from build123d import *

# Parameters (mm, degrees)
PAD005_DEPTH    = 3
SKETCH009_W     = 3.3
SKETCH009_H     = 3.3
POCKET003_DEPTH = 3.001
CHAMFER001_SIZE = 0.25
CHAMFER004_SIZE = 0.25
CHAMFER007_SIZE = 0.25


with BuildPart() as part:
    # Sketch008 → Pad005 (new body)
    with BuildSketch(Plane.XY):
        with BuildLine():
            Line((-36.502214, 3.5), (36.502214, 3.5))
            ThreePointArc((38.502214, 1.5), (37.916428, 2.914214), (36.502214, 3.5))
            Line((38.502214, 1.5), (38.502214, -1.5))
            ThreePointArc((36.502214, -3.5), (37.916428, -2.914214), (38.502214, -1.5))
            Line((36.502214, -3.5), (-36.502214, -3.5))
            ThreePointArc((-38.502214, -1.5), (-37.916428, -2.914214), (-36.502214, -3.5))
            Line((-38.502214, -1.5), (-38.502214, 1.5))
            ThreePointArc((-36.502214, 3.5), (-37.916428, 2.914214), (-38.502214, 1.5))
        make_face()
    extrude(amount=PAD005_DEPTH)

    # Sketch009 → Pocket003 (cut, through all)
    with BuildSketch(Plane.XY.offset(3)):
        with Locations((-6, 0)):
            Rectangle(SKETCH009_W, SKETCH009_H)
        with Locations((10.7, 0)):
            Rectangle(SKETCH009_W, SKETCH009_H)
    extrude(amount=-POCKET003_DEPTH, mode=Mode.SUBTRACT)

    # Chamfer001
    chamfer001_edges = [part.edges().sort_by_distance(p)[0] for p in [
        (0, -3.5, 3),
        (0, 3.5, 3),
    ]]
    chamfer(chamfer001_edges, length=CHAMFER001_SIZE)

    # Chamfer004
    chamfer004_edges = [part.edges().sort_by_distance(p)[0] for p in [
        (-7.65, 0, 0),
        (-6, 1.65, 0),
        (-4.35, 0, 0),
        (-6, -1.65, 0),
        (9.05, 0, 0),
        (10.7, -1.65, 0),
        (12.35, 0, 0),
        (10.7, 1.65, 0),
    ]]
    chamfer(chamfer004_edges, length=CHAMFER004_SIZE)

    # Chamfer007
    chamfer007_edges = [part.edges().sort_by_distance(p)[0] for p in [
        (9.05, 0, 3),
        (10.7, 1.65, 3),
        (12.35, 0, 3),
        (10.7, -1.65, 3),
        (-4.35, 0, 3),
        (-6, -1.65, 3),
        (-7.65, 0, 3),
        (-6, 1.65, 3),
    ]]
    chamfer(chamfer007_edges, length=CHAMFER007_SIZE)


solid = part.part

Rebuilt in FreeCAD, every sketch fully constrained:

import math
import FreeCAD as App
import Part
import Sketcher
Q = App.Units.Quantity


def edges_at(feature, points):
    """Names of the edges that pass closest to the given points."""
    edges = feature.Shape.Edges
    near = lambda p: min(range(len(edges)), key=lambda i: edges[i].distToShape(Part.Vertex(*p))[0])
    return sorted({f"Edge{near(p) + 1}" for p in points})

doc = App.newDocument("Part")
body = doc.addObject("PartDesign::Body", "Body")

# Sketch on XY plane
sketch1 = doc.addObject("Sketcher::SketchObject", "Sketch")
body.addObject(sketch1)
sketch1.AttachmentSupport = (doc.XY_Plane, [""])
sketch1.MapMode = "FlatFace"
sketch1.addGeometry(Part.LineSegment(App.Vector(36.5, 3.5, 0), App.Vector(-36.5, 3.5, 0)), False)
sketch1.addGeometry(Part.ArcOfCircle(Part.Circle(App.Vector(-36.5, 1.5, 0), App.Vector(0, 0, 1), 2), math.radians(90), math.radians(180)), False)
sketch1.addGeometry(Part.LineSegment(App.Vector(-38.5, 1.5, 0), App.Vector(-38.5, -1.5, 0)), False)
sketch1.addGeometry(Part.ArcOfCircle(Part.Circle(App.Vector(-36.5, -1.5, 0), App.Vector(0, 0, 1), 2), math.radians(180), math.radians(270)), False)
sketch1.addGeometry(Part.LineSegment(App.Vector(-36.5, -3.5, 0), App.Vector(36.5, -3.5, 0)), False)
sketch1.addGeometry(Part.ArcOfCircle(Part.Circle(App.Vector(36.5, -1.5, 0), App.Vector(0, 0, 1), 2), math.radians(-90), math.radians(0)), False)
sketch1.addGeometry(Part.LineSegment(App.Vector(38.5, -1.5, 0), App.Vector(38.5, 1.5, 0)), False)
sketch1.addGeometry(Part.ArcOfCircle(Part.Circle(App.Vector(36.5, 1.5, 0), App.Vector(0, 0, 1), 2), math.radians(0), math.radians(90)), False)
sketch1.addConstraint(Sketcher.Constraint("Tangent", 0, 2, 1, 1))
sketch1.addConstraint(Sketcher.Constraint("Tangent", 1, 2, 2, 1))
sketch1.addConstraint(Sketcher.Constraint("Tangent", 2, 2, 3, 1))
sketch1.addConstraint(Sketcher.Constraint("Tangent", 3, 2, 4, 1))
sketch1.addConstraint(Sketcher.Constraint("Tangent", 4, 2, 5, 1))
sketch1.addConstraint(Sketcher.Constraint("Tangent", 5, 2, 6, 1))
sketch1.addConstraint(Sketcher.Constraint("Tangent", 6, 2, 7, 1))
sketch1.addConstraint(Sketcher.Constraint("Tangent", 7, 2, 0, 1))
sketch1.addConstraint(Sketcher.Constraint("Horizontal", 0))
sketch1.addConstraint(Sketcher.Constraint("Vertical", 2))
sketch1.addConstraint(Sketcher.Constraint("Horizontal", 4))
sketch1.addConstraint(Sketcher.Constraint("Vertical", 6))
sketch1.addConstraint(Sketcher.Constraint("Equal", 1, 3))
sketch1.addConstraint(Sketcher.Constraint("Equal", 3, 5))
sketch1.addConstraint(Sketcher.Constraint("Equal", 5, 7))
sketch1.addConstraint(Sketcher.Constraint("Symmetric", 1, 3, 5, 3, -1, 1))
sketch1.addConstraint(Sketcher.Constraint("Radius", 1, Q("1.999999 mm")))
sketch1.addConstraint(Sketcher.Constraint("DistanceY", 2, 2, 2, 1, Q("3 mm")))
sketch1.addConstraint(Sketcher.Constraint("DistanceX", 0, 2, 0, 1, Q("73.004428 mm")))
pad1 = doc.addObject("PartDesign::Pad", "Pad")
body.addObject(pad1)
pad1.Profile = sketch1
pad1.Length = 3

# Sketch on XY plane
sketch2 = doc.addObject("Sketcher::SketchObject", "Sketch001")
body.addObject(sketch2)
sketch2.AttachmentSupport = (doc.XY_Plane, [""])
sketch2.MapMode = "FlatFace"
sketch2.AttachmentOffset = App.Placement(App.Vector(0, 0, 3), App.Rotation())
sketch2.addGeometry(Part.LineSegment(App.Vector(-7.7, 1.6, 0), App.Vector(-7.7, -1.6, 0)), False)
sketch2.addGeometry(Part.LineSegment(App.Vector(-7.7, -1.6, 0), App.Vector(-4.3, -1.6, 0)), False)
sketch2.addGeometry(Part.LineSegment(App.Vector(-4.3, -1.6, 0), App.Vector(-4.3, 1.6, 0)), False)
sketch2.addGeometry(Part.LineSegment(App.Vector(-4.3, 1.6, 0), App.Vector(-7.7, 1.6, 0)), False)
sketch2.addGeometry(Part.LineSegment(App.Vector(9.1, 1.6, 0), App.Vector(9.1, -1.6, 0)), False)
sketch2.addGeometry(Part.LineSegment(App.Vector(9.1, -1.6, 0), App.Vector(12.3, -1.6, 0)), False)
sketch2.addGeometry(Part.LineSegment(App.Vector(12.3, -1.6, 0), App.Vector(12.3, 1.6, 0)), False)
sketch2.addGeometry(Part.LineSegment(App.Vector(12.3, 1.6, 0), App.Vector(9.1, 1.6, 0)), False)
sketch2.addConstraint(Sketcher.Constraint("Coincident", 0, 2, 1, 1))
sketch2.addConstraint(Sketcher.Constraint("Coincident", 1, 2, 2, 1))
sketch2.addConstraint(Sketcher.Constraint("Coincident", 2, 2, 3, 1))
sketch2.addConstraint(Sketcher.Constraint("Coincident", 3, 2, 0, 1))
sketch2.addConstraint(Sketcher.Constraint("Coincident", 4, 2, 5, 1))
sketch2.addConstraint(Sketcher.Constraint("Coincident", 5, 2, 6, 1))
sketch2.addConstraint(Sketcher.Constraint("Coincident", 6, 2, 7, 1))
sketch2.addConstraint(Sketcher.Constraint("Coincident", 7, 2, 4, 1))
sketch2.addConstraint(Sketcher.Constraint("Vertical", 0))
sketch2.addConstraint(Sketcher.Constraint("Horizontal", 1))
sketch2.addConstraint(Sketcher.Constraint("Vertical", 2))
sketch2.addConstraint(Sketcher.Constraint("Horizontal", 3))
sketch2.addConstraint(Sketcher.Constraint("Vertical", 4))
sketch2.addConstraint(Sketcher.Constraint("Horizontal", 5))
sketch2.addConstraint(Sketcher.Constraint("Vertical", 6))
sketch2.addConstraint(Sketcher.Constraint("Horizontal", 7))
sketch2.addConstraint(Sketcher.Constraint("Horizontal", 1, 2, 4, 2))
sketch2.addConstraint(Sketcher.Constraint("Horizontal", 3, 2, 6, 2))
sketch2.addConstraint(Sketcher.Constraint("Equal", 3, 5))
sketch2.addConstraint(Sketcher.Constraint("Equal", 7, 0))
sketch2.addConstraint(Sketcher.Constraint("DistanceX", 1, 1, 1, 2, Q("3.3 mm")))
sketch2.addConstraint(Sketcher.Constraint("DistanceX", 0, 2, 5, 2, Q("20 mm")))
sketch2.addConstraint(Sketcher.Constraint("DistanceX", 0, 2, -1, 1, Q("7.65 mm")))
sketch2.addConstraint(Sketcher.Constraint("DistanceY", 0, 2, -1, 1, Q("1.65 mm")))
pocket1 = doc.addObject("PartDesign::Pocket", "Pocket")
body.addObject(pocket1)
pocket1.Profile = sketch2
pocket1.Type = "ThroughAll"
doc.recompute()

chamfer = doc.addObject("PartDesign::Chamfer", "Chamfer")
body.addObject(chamfer)
chamfer.Base = (pocket1, edges_at(pocket1, [(0, -3.5, 3), (0, 3.5, 3)]))
chamfer.Size = 0.25
doc.recompute()

chamfer2 = doc.addObject("PartDesign::Chamfer", "Chamfer001")
body.addObject(chamfer2)
chamfer2.Base = (chamfer, edges_at(chamfer, [
    (-7.65, 0, 0),
    (-6, 1.65, 0),
    (-4.35, 0, 0),
    (-6, -1.65, 0),
    (9.05, 0, 0),
    (10.7, -1.65, 0),
    (12.35, 0, 0),
    (10.7, 1.65, 0),
]))
chamfer2.Size = 0.25
doc.recompute()

chamfer3 = doc.addObject("PartDesign::Chamfer", "Chamfer002")
body.addObject(chamfer3)
chamfer3.Base = (chamfer2, edges_at(chamfer2, [
    (9.05, 0, 3),
    (10.7, 1.65, 3),
    (12.35, 0, 3),
    (10.7, -1.65, 3),
    (-4.35, 0, 3),
    (-6, -1.65, 3),
    (-7.65, 0, 3),
    (-6, 1.65, 3),
]))
chamfer3.Size = 0.25

doc.recompute()
